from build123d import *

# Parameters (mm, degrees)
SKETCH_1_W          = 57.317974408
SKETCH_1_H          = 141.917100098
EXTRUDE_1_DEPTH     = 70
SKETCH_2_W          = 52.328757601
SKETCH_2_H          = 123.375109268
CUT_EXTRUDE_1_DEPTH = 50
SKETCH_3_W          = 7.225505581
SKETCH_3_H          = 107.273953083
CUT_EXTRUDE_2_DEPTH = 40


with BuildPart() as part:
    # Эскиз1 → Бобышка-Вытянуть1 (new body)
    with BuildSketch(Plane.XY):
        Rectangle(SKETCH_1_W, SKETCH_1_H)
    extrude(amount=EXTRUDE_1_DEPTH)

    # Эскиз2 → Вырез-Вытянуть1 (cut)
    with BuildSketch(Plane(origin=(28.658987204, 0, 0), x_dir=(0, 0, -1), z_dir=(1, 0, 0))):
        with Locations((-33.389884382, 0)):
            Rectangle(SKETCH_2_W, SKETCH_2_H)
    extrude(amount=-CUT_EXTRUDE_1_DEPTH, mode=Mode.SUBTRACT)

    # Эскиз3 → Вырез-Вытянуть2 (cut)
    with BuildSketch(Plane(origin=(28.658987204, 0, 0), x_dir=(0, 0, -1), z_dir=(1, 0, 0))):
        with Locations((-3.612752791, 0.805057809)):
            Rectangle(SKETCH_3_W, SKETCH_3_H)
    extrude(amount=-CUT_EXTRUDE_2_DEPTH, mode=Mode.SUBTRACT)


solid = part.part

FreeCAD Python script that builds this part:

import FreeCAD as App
import Part
import Sketcher


def add_polygon(sketch, points):
    """Adds a closed chain of lines whose ends are joined by coincident constraints."""
    first, n = sketch.GeometryCount, len(points)
    for a, b in zip(points, points[1:] + points[:1]):
        sketch.addGeometry(Part.LineSegment(App.Vector(*a, 0), App.Vector(*b, 0)), False)
    for i in range(n):
        sketch.addConstraint(Sketcher.Constraint("Coincident", first + i, 2, first + (i + 1) % n, 1))

doc = App.newDocument("Part")
body = doc.addObject("PartDesign::Body", "Body")

# Sketch on XY plane
sketch1 = body.newObject("Sketcher::SketchObject", "Sketch")
sketch1.AttachmentSupport = (doc.getObject("XY_Plane"), [""])
sketch1.MapMode = "FlatFace"
add_polygon(sketch1, [(-28.658987, 70.95855), (-28.658987, -70.95855), (28.658987, -70.95855), (28.658987, 70.95855)])  # lines 0-3
sketch1.addConstraint([
    Sketcher.Constraint("Vertical", 0),
    Sketcher.Constraint("Horizontal", 1),
    Sketcher.Constraint("Vertical", 2),
    Sketcher.Constraint("Horizontal", 3),
    Sketcher.Constraint("Symmetric", 0, 2, 2, 2, -1, 1),
    Sketcher.Constraint("DistanceY", 0, 2, 0, 1, 141.9171),
    Sketcher.Constraint("DistanceX", 1, 1, 1, 2, 57.317974),
])
pad1 = body.newObject("PartDesign::Pad", "Pad")
pad1.Profile = sketch1
pad1.Length = 70

# Sketch on YZ plane
sketch2 = body.newObject("Sketcher::SketchObject", "Sketch001")
sketch2.AttachmentSupport = (doc.getObject("YZ_Plane"), [""])
sketch2.MapMode = "FlatFace"
sketch2.AttachmentOffset = App.Placement(App.Vector(0, 0, 28.658987), App.Rotation())
add_polygon(sketch2, [(61.687555, 59.554263), (-61.687555, 59.554263), (-61.687555, 7.225506), (61.687555, 7.225506)])  # lines 0-3
sketch2.addConstraint([
    Sketcher.Constraint("Horizontal", 0),
    Sketcher.Constraint("Vertical", 1),
    Sketcher.Constraint("Horizontal", 2),
    Sketcher.Constraint("Vertical", 3),
    Sketcher.Constraint("DistanceX", 0, 2, 0, 1, 123.375109),
    Sketcher.Constraint("DistanceY", 1, 2, 1, 1, 52.328758),
    Sketcher.Constraint("DistanceX", 0, 2, -1, 1, 61.687555),
    Sketcher.Constraint("DistanceY", -1, 1, 0, 2, 59.554263),
])
pocket1 = body.newObject("PartDesign::Pocket", "Pocket")
pocket1.Profile = sketch2
pocket1.Length = 50

# Sketch on YZ plane
sketch3 = body.newObject("Sketcher::SketchObject", "Sketch002")
sketch3.AttachmentSupport = (doc.getObject("YZ_Plane"), [""])
sketch3.MapMode = "FlatFace"
sketch3.AttachmentOffset = App.Placement(App.Vector(0, 0, 28.658987), App.Rotation())
add_polygon(sketch3, [(54.442034, 7.225506), (-52.831919, 7.225506), (-52.831919, 0), (54.442034, 0)])  # lines 0-3
sketch3.addConstraint([
    Sketcher.Constraint("Horizontal", 0),
    Sketcher.Constraint("Vertical", 1),
    Sketcher.Constraint("Horizontal", 2),
    Sketcher.Constraint("Vertical", 3),
    Sketcher.Constraint("PointOnObject", 1, 2, -1),
    Sketcher.Constraint("DistanceX", 0, 2, 0, 1, 107.273953),
    Sketcher.Constraint("DistanceY", 1, 2, 1, 1, 7.225506),
    Sketcher.Constraint("DistanceX", 0, 2, -1, 1, 52.831919),
])
pocket2 = body.newObject("PartDesign::Pocket", "Pocket001")
pocket2.Profile = sketch3
pocket2.Length = 40

doc.recompute()
